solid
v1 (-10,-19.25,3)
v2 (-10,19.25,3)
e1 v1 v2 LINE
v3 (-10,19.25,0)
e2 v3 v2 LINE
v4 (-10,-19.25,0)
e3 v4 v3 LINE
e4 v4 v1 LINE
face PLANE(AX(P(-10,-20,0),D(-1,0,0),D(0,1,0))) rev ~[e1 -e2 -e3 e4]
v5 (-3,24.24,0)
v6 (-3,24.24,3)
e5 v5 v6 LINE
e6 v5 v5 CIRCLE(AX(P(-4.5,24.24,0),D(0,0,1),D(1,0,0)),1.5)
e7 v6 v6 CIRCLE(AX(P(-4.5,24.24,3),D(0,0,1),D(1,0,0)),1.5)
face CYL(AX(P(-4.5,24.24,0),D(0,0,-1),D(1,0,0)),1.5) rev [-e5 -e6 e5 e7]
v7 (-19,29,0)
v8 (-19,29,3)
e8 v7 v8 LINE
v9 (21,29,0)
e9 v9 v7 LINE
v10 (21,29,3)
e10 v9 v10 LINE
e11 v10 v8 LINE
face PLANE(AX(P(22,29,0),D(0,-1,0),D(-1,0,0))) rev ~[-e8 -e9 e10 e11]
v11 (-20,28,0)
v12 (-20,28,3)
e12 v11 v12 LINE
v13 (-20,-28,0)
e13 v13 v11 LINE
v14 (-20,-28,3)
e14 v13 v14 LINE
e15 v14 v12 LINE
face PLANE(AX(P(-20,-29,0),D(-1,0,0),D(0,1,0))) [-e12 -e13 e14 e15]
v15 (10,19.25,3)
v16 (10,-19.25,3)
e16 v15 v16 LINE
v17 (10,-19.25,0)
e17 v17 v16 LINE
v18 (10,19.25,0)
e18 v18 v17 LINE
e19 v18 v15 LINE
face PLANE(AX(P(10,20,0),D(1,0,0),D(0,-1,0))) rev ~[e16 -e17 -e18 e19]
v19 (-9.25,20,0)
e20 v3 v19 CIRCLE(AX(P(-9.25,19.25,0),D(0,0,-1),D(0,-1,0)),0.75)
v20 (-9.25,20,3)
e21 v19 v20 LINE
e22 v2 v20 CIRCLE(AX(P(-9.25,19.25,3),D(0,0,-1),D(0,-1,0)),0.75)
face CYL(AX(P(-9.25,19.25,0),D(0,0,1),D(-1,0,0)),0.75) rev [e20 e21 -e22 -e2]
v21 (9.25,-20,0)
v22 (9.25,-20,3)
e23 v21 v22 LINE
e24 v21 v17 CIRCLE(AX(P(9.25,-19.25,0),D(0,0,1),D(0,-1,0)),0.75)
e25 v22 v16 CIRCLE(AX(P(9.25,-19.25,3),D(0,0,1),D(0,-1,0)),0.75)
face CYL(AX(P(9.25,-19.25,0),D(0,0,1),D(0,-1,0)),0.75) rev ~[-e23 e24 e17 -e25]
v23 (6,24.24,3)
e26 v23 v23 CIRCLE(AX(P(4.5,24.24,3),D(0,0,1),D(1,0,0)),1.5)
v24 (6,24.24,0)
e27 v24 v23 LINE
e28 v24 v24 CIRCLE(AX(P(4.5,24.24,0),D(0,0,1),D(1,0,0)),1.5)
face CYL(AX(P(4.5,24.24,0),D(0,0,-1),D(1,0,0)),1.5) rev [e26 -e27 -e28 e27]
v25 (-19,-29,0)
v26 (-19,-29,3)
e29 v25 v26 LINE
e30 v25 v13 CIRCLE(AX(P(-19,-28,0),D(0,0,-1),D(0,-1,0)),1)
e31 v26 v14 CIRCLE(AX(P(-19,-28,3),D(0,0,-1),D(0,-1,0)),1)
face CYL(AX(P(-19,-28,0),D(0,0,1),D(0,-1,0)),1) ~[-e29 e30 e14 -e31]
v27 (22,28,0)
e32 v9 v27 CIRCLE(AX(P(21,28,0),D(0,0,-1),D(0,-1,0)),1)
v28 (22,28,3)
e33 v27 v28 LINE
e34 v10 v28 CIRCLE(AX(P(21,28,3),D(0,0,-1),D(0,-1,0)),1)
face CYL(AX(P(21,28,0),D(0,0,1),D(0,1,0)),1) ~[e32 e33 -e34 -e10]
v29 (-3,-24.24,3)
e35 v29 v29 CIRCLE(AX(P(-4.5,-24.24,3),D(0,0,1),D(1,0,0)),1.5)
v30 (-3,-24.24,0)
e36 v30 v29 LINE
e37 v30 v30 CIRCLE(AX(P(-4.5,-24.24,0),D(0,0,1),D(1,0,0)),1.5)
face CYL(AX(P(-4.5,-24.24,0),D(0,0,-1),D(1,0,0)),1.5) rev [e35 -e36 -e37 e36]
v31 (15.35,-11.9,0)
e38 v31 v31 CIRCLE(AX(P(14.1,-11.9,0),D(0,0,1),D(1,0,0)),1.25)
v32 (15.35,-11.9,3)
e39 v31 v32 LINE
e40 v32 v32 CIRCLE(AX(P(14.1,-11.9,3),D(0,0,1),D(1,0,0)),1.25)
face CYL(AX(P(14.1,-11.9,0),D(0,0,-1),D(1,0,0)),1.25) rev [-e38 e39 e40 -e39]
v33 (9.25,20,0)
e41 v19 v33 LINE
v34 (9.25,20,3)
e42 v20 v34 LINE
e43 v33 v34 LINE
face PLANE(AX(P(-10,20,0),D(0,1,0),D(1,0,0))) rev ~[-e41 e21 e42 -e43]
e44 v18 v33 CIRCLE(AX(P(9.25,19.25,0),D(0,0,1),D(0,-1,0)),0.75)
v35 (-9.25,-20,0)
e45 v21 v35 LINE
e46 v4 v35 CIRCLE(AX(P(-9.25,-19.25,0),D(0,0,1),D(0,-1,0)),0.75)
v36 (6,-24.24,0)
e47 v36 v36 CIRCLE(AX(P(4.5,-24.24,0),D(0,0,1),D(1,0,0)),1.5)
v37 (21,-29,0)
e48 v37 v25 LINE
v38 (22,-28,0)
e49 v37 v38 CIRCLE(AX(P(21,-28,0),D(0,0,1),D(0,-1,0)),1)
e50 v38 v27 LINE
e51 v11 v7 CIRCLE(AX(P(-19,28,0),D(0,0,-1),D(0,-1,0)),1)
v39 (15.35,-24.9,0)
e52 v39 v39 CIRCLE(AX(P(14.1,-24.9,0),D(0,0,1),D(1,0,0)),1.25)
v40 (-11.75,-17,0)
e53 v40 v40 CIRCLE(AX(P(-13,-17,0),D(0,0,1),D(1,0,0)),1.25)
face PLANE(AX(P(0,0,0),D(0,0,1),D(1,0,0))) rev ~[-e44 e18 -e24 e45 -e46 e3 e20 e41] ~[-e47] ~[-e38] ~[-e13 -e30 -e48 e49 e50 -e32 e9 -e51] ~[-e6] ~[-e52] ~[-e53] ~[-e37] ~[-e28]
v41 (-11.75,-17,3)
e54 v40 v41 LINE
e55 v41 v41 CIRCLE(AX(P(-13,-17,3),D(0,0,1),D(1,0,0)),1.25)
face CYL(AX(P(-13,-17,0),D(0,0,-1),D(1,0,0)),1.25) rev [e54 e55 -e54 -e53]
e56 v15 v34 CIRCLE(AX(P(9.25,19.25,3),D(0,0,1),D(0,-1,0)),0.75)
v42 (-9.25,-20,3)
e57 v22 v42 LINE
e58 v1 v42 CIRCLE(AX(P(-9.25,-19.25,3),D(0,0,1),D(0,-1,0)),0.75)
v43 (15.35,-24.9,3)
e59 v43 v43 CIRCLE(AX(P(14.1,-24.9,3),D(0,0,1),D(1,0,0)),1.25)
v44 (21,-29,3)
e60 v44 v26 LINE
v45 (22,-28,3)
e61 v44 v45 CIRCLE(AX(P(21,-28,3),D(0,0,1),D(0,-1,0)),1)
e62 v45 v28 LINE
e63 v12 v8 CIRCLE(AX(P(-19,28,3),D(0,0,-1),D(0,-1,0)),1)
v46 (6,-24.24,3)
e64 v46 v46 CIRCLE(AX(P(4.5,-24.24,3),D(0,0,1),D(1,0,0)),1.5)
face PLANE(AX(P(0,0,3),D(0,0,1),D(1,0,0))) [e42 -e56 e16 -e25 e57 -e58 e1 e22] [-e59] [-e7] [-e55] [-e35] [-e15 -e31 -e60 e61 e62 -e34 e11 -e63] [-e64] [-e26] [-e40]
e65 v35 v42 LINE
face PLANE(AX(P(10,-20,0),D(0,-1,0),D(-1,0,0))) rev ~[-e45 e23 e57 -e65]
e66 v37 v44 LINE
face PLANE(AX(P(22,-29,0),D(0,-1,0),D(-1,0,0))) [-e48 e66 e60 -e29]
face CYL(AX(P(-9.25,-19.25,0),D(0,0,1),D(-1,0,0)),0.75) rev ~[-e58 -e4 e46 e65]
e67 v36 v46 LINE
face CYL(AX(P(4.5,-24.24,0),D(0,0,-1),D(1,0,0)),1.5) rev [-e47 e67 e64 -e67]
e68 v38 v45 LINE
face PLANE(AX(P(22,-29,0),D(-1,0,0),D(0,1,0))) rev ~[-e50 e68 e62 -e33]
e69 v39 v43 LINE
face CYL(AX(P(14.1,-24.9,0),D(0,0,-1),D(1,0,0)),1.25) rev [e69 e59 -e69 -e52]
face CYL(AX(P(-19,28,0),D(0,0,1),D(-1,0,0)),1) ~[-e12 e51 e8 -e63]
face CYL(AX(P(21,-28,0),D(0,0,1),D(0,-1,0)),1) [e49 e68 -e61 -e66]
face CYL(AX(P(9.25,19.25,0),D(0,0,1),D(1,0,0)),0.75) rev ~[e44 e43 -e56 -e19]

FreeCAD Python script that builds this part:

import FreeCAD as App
import Part
import Sketcher
from FreeCAD import Vector


def edges_at(feature, points):
    """Names of the edges that pass closest to the given points."""
    edges = feature.Shape.Edges
    near = lambda p: min(range(len(edges)), key=lambda i: edges[i].distToShape(Part.Vertex(*p))[0])
    return sorted({f"Edge{near(p) + 1}" for p in points})

doc = App.newDocument("Part")
body = doc.addObject("PartDesign::Body", "Body")

# Sketch on XY plane
sketch1 = doc.addObject("Sketcher::SketchObject", "Sketch")
body.addObject(sketch1)
sketch1.AttachmentSupport = (doc.XY_Plane, [""])
sketch1.MapMode = "FlatFace"
sketch1.addGeometry(Part.LineSegment(Vector(-20, -29, 0), Vector(22, -29, 0)), False)
sketch1.addGeometry(Part.LineSegment(Vector(22, -29, 0), Vector(22, 29, 0)), False)
sketch1.addGeometry(Part.LineSegment(Vector(22, 29, 0), Vector(-20, 29, 0)), False)
sketch1.addGeometry(Part.LineSegment(Vector(-20, 29, 0), Vector(-20, -29, 0)), False)
sketch1.addGeometry(Part.Circle(Vector(-13, -17, 0), Vector(0, 0, 1), 1.2), False)
sketch1.addGeometry(Part.Circle(Vector(-4.5, -24.2, 0), Vector(0, 0, 1), 1.5), False)
sketch1.addGeometry(Part.Circle(Vector(4.5, -24.2, 0), Vector(0, 0, 1), 1.5), False)
sketch1.addGeometry(Part.Circle(Vector(14.1, -24.9, 0), Vector(0, 0, 1), 1.2), False)
sketch1.addGeometry(Part.Circle(Vector(14.1, -11.9, 0), Vector(0, 0, 1), 1.2), False)
sketch1.addGeometry(Part.LineSegment(Vector(-10, -20, 0), Vector(-10, 20, 0)), False)
sketch1.addGeometry(Part.LineSegment(Vector(-10, 20, 0), Vector(10, 20, 0)), False)
sketch1.addGeometry(Part.LineSegment(Vector(10, 20, 0), Vector(10, -20, 0)), False)
sketch1.addGeometry(Part.LineSegment(Vector(10, -20, 0), Vector(-10, -20, 0)), False)
sketch1.addGeometry(Part.Circle(Vector(-4.5, 24.2, 0), Vector(0, 0, 1), 1.5), False)
sketch1.addGeometry(Part.Circle(Vector(4.5, 24.2, 0), Vector(0, 0, 1), 1.5), False)
sketch1.addConstraint(Sketcher.Constraint("Coincident", 0, 2, 1, 1))
sketch1.addConstraint(Sketcher.Constraint("Coincident", 1, 2, 2, 1))
sketch1.addConstraint(Sketcher.Constraint("Coincident", 2, 2, 3, 1))
sketch1.addConstraint(Sketcher.Constraint("Coincident", 3, 2, 0, 1))
sketch1.addConstraint(Sketcher.Constraint("Coincident", 9, 2, 10, 1))
sketch1.addConstraint(Sketcher.Constraint("Coincident", 10, 2, 11, 1))
sketch1.addConstraint(Sketcher.Constraint("Coincident", 11, 2, 12, 1))
sketch1.addConstraint(Sketcher.Constraint("Coincident", 12, 2, 9, 1))
sketch1.addConstraint(Sketcher.Constraint("Horizontal", 0))
sketch1.addConstraint(Sketcher.Constraint("Vertical", 1))
sketch1.addConstraint(Sketcher.Constraint("Horizontal", 2))
sketch1.addConstraint(Sketcher.Constraint("Vertical", 3))
sketch1.addConstraint(Sketcher.Constraint("Vertical", 9))
sketch1.addConstraint(Sketcher.Constraint("Horizontal", 10))
sketch1.addConstraint(Sketcher.Constraint("Vertical", 11))
sketch1.addConstraint(Sketcher.Constraint("Horizontal", 12))
sketch1.addConstraint(Sketcher.Constraint("Equal", 5, 6))
sketch1.addConstraint(Sketcher.Constraint("Equal", 4, 7))
sketch1.addConstraint(Sketcher.Constraint("Equal", 7, 8))
sketch1.addConstraint(Sketcher.Constraint("Equal", 6, 13))
sketch1.addConstraint(Sketcher.Constraint("Equal", 13, 14))
sketch1.addConstraint(Sketcher.Constraint("Symmetric", 6, 3, 13, 3, -1, 1))
sketch1.addConstraint(Sketcher.Constraint("Symmetric", 5, 3, 14, 3, -1, 1))
sketch1.addConstraint(Sketcher.Constraint("Symmetric", 9, 2, 11, 2, -1, 1))
sketch1.addConstraint(Sketcher.Constraint("Symmetric", 5, 3, 6, 3, -2))
sketch1.addConstraint(Sketcher.Constraint("Vertical", 7, 3, 8, 3))
sketch1.addConstraint(Sketcher.Constraint("Diameter", 5, 3.0))
sketch1.addConstraint(Sketcher.Constraint("Diameter", 4, 2.5))
sketch1.addConstraint(Sketcher.Constraint("DistanceX", 10, 1, 10, 2, 20.0))
sketch1.addConstraint(Sketcher.Constraint("DistanceY", 9, 1, 9, 2, 40.0))
sketch1.addConstraint(Sketcher.Constraint("DistanceX", 4, 3, -1, 1, 13.0))
sketch1.addConstraint(Sketcher.Constraint("DistanceX", 2, 2, -1, 1, 20.0))
sketch1.addConstraint(Sketcher.Constraint("DistanceX", 5, 3, 6, 3, 9.0))
sketch1.addConstraint(Sketcher.Constraint("DistanceY", 7, 3, 8, 3, 13.0))
sketch1.addConstraint(Sketcher.Constraint("DistanceY", 0, 2, 4, 3, 12.0))
sketch1.addConstraint(Sketcher.Constraint("DistanceY", 9, 2, 2, 2, 9.0))
sketch1.addConstraint(Sketcher.Constraint("DistanceX", 10, 2, 1, 2, 12.0))
sketch1.addConstraint(Sketcher.Constraint("DistanceY", 0, 2, 11, 2, 9.0))
sketch1.addConstraint(Sketcher.Constraint("DistanceY", 9, 2, 13, 3, 4.24))
sketch1.addConstraint(Sketcher.Constraint("DistanceX", -1, 1, 7, 3, 14.1))
sketch1.addConstraint(Sketcher.Constraint("DistanceY", 7, 3, -1, 1, 24.9))
pad1 = doc.addObject("PartDesign::Pad", "Pad")
body.addObject(pad1)
pad1.Profile = sketch1
pad1.Length = 3
doc.recompute()

fillet = doc.addObject("PartDesign::Fillet", "Fillet")
body.addObject(fillet)
fillet.Base = (pad1, edges_at(pad1, [
    (-10, -20, 1.5),
    (10, -20, 1.5),
    (10, 20, 1.5),
    (-10, 20, 1.5),
]))
fillet.Radius = 0.75
doc.recompute()

fillet2 = doc.addObject("PartDesign::Fillet", "Fillet001")
body.addObject(fillet2)
fillet2.Base = (fillet, edges_at(fillet, [
    (-20, -29, 1.5),
    (22, -29, 1.5),
    (-20, 29, 1.5),
    (22, 29, 1.5),
]))
fillet2.Radius = 1

doc.recompute()
